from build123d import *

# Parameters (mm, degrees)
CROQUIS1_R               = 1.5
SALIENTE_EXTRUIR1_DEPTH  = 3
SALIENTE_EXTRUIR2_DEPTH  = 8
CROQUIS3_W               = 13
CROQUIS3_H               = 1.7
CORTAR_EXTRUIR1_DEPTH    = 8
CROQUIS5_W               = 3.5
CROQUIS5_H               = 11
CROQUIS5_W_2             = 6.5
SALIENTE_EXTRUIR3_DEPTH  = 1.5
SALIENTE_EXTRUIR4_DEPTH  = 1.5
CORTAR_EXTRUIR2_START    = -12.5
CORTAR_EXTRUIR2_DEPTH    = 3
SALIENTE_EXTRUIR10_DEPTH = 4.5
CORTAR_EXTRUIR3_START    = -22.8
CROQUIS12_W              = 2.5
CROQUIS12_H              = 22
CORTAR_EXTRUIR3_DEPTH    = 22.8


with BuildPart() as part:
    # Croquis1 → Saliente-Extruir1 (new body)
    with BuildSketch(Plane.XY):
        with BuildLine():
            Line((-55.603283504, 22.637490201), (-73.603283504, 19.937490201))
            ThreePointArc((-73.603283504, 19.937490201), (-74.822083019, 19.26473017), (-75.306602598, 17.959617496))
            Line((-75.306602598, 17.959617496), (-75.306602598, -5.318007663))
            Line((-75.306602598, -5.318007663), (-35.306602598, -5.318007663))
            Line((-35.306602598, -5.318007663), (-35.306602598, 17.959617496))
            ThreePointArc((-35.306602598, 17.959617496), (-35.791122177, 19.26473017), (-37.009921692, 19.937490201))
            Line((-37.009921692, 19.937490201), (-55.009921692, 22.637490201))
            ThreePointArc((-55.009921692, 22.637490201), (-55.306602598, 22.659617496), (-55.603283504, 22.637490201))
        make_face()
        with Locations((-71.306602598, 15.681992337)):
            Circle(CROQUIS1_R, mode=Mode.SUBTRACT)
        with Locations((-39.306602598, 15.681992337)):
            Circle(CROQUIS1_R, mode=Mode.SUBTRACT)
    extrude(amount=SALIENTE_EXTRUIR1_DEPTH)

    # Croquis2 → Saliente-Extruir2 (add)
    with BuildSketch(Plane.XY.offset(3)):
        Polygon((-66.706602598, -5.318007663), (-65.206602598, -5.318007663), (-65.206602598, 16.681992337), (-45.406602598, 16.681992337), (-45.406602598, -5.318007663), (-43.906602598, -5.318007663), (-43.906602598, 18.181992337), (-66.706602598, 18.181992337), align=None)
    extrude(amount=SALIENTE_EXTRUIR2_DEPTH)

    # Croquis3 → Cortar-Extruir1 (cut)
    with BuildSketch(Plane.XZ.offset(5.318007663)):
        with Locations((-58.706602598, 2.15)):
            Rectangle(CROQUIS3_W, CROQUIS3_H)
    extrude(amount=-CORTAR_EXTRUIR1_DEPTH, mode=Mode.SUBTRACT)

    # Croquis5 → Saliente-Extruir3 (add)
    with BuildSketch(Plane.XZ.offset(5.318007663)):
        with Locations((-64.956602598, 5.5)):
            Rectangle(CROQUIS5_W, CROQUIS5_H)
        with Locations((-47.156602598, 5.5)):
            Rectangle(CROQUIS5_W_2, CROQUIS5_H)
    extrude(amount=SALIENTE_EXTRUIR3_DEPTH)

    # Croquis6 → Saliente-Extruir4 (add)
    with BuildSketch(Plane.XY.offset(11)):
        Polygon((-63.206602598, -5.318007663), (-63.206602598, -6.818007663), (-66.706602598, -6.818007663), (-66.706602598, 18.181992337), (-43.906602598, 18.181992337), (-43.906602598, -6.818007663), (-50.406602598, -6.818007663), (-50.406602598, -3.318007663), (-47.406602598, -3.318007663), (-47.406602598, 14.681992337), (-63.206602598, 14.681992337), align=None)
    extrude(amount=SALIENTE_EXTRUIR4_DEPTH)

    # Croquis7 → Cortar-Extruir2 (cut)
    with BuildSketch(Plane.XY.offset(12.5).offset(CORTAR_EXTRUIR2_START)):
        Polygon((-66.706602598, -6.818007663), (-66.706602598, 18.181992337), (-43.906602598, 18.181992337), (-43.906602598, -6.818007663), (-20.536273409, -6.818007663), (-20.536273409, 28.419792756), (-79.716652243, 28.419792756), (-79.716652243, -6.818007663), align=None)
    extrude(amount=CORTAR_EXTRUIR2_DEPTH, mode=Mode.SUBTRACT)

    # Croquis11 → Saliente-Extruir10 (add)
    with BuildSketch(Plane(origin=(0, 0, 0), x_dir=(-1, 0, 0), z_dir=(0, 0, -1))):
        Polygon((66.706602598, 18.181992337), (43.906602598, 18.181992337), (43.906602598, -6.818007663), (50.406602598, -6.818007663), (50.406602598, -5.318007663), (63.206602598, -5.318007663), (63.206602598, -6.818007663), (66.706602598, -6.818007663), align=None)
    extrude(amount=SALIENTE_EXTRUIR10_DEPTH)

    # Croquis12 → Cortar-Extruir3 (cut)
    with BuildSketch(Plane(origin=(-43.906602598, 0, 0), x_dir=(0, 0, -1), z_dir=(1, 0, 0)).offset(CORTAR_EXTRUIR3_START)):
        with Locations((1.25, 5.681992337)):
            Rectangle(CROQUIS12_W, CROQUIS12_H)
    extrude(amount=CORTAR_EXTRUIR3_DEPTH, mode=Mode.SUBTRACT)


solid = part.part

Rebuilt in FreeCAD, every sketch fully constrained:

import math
import FreeCAD as App
import Part
import Sketcher
Q = App.Units.Quantity

doc = App.newDocument("Part")
body = doc.addObject("PartDesign::Body", "Body")

sketch1 = body.newObject("Sketcher::SketchObject", "Sketch")
sketch1.AttachmentSupport = (doc.getObject("XY_Plane"), [""])
sketch1.MapMode = "FlatFace"
sketch1.addGeometry([
    Part.LineSegment(App.Vector(-55.6, 22.6, 0), App.Vector(-73.6, 19.9, 0)),
    Part.ArcOfCircle(Part.Circle(App.Vector(-73.3, 18, 0), App.Vector(0, 0, 1), 2), math.radians(99), math.radians(180)),
    Part.LineSegment(App.Vector(-75.3, 18, 0), App.Vector(-75.3, -5.3, 0)),
    Part.LineSegment(App.Vector(-75.3, -5.3, 0), App.Vector(-35.3, -5.3, 0)),
    Part.LineSegment(App.Vector(-35.3, -5.3, 0), App.Vector(-35.3, 18, 0)),
    Part.ArcOfCircle(Part.Circle(App.Vector(-37.3, 18, 0), App.Vector(0, 0, 1), 2), math.radians(0), math.radians(81)),
    Part.LineSegment(App.Vector(-37, 19.9, 0), App.Vector(-55, 22.6, 0)),
    Part.ArcOfCircle(Part.Circle(App.Vector(-55.3, 20.7, 0), App.Vector(0, 0, 1), 2), math.radians(81.47), math.radians(98.53)),
    Part.Circle(App.Vector(-71.3, 15.7, 0), App.Vector(0, 0, 1), 1.5),
    Part.Circle(App.Vector(-39.3, 15.7, 0), App.Vector(0, 0, 1), 1.5),
], False)
sketch1.addConstraint([
    Sketcher.Constraint("Tangent", 0, 2, 1, 1),
    Sketcher.Constraint("Tangent", 1, 2, 2, 1),
    Sketcher.Constraint("Coincident", 2, 2, 3, 1),
    Sketcher.Constraint("Coincident", 3, 2, 4, 1),
    Sketcher.Constraint("Tangent", 4, 2, 5, 1),
    Sketcher.Constraint("Tangent", 5, 2, 6, 1),
    Sketcher.Constraint("Tangent", 6, 2, 7, 1),
    Sketcher.Constraint("Tangent", 7, 2, 0, 1),
    Sketcher.Constraint("Vertical", 2),
    Sketcher.Constraint("Horizontal", 3),
    Sketcher.Constraint("Vertical", 4),
    Sketcher.Constraint("Equal", 1, 5),
    Sketcher.Constraint("Equal", 5, 7),
    Sketcher.Constraint("Equal", 8, 9),
    Sketcher.Constraint("Horizontal", 1, 3, 5, 3),
    Sketcher.Constraint("Horizontal", 8, 3, 9, 3),
    Sketcher.Constraint("Equal", 0, 6),
    Sketcher.Constraint("Diameter", 8, Q("3 mm")),
    Sketcher.Constraint("Radius", 1, Q("2 mm")),
    Sketcher.Constraint("DistanceX", 3, 1, 3, 2, Q("40 mm")),
    Sketcher.Constraint("DistanceX", 1, 3, 8, 3, Q("2 mm")),
    Sketcher.Constraint("DistanceX", 9, 3, 5, 3, Q("2 mm")),
    Sketcher.Constraint("DistanceY", 2, 2, 8, 3, Q("21 mm")),
    Sketcher.Constraint("DistanceY", 1, 3, 7, 3, Q("2.7 mm")),
    Sketcher.Constraint("DistanceY", 2, 2, 2, 1, Q("23.277625 mm")),
    Sketcher.Constraint("DistanceY", -1, 1, 0, 2, Q("19.93749 mm")),
    Sketcher.Constraint("DistanceX", 5, 2, -1, 1, Q("37.009922 mm")),
])
pad1 = body.newObject("PartDesign::Pad", "Pad")
pad1.Profile = sketch1
pad1.Length = 3

sketch2 = body.newObject("Sketcher::SketchObject", "Sketch001")
sketch2.AttachmentSupport = (doc.getObject("XY_Plane"), [""])
sketch2.MapMode = "FlatFace"
sketch2.AttachmentOffset = App.Placement(App.Vector(0, 0, 3), App.Rotation())
sketch2.addGeometry([
    Part.LineSegment(App.Vector(-66.7, -5.3, 0), App.Vector(-65.2, -5.3, 0)),
    Part.LineSegment(App.Vector(-65.2, -5.3, 0), App.Vector(-65.2, 16.7, 0)),
    Part.LineSegment(App.Vector(-65.2, 16.7, 0), App.Vector(-45.4, 16.7, 0)),
    Part.LineSegment(App.Vector(-45.4, 16.7, 0), App.Vector(-45.4, -5.3, 0)),
    Part.LineSegment(App.Vector(-45.4, -5.3, 0), App.Vector(-43.9, -5.3, 0)),
    Part.LineSegment(App.Vector(-43.9, -5.3, 0), App.Vector(-43.9, 18.2, 0)),
    Part.LineSegment(App.Vector(-43.9, 18.2, 0), App.Vector(-66.7, 18.2, 0)),
    Part.LineSegment(App.Vector(-66.7, 18.2, 0), App.Vector(-66.7, -5.3, 0)),
], False)
sketch2.addConstraint([
    Sketcher.Constraint("Coincident", 0, 2, 1, 1),
    Sketcher.Constraint("Coincident", 1, 2, 2, 1),
    Sketcher.Constraint("Coincident", 2, 2, 3, 1),
    Sketcher.Constraint("Coincident", 3, 2, 4, 1),
    Sketcher.Constraint("Coincident", 4, 2, 5, 1),
    Sketcher.Constraint("Coincident", 5, 2, 6, 1),
    Sketcher.Constraint("Coincident", 6, 2, 7, 1),
    Sketcher.Constraint("Coincident", 7, 2, 0, 1),
    Sketcher.Constraint("Horizontal", 0),
    Sketcher.Constraint("Vertical", 1),
    Sketcher.Constraint("Horizontal", 2),
    Sketcher.Constraint("Vertical", 3),
    Sketcher.Constraint("Horizontal", 4),
    Sketcher.Constraint("Vertical", 5),
    Sketcher.Constraint("Horizontal", 6),
    Sketcher.Constraint("Vertical", 7),
    Sketcher.Constraint("Horizontal", 0, 2, 3, 2),
    Sketcher.Constraint("Equal", 0, 4),
    Sketcher.Constraint("DistanceY", 1, 1, 1, 2, Q("22 mm")),
    Sketcher.Constraint("DistanceX", 0, 1, 0, 2, Q("1.5 mm")),
    Sketcher.Constraint("DistanceX", 2, 1, 2, 2, Q("19.8 mm")),
    Sketcher.Constraint("DistanceY", 5, 1, 5, 2, Q("23.5 mm")),
    Sketcher.Constraint("DistanceX", 0, 2, -1, 1, Q("65.206603 mm")),
    Sketcher.Constraint("DistanceY", 0, 2, -1, 1, Q("5.318008 mm")),
])
pad2 = body.newObject("PartDesign::Pad", "Pad001")
pad2.Profile = sketch2
pad2.Length = 8

sketch3 = body.newObject("Sketcher::SketchObject", "Sketch002")
sketch3.AttachmentSupport = (doc.getObject("XZ_Plane"), [""])
sketch3.MapMode = "FlatFace"
sketch3.AttachmentOffset = App.Placement(App.Vector(0, 0, 5.318008), App.Rotation())
sketch3.addGeometry([
    Part.LineSegment(App.Vector(-65.2, 3, 0), App.Vector(-65.2, 1.3, 0)),
    Part.LineSegment(App.Vector(-65.2, 1.3, 0), App.Vector(-52.2, 1.3, 0)),
    Part.LineSegment(App.Vector(-52.2, 1.3, 0), App.Vector(-52.2, 3, 0)),
    Part.LineSegment(App.Vector(-52.2, 3, 0), App.Vector(-65.2, 3, 0)),
], False)
sketch3.addConstraint([
    Sketcher.Constraint("Coincident", 0, 2, 1, 1),
    Sketcher.Constraint("Coincident", 1, 2, 2, 1),
    Sketcher.Constraint("Coincident", 2, 2, 3, 1),
    Sketcher.Constraint("Coincident", 3, 2, 0, 1),
    Sketcher.Constraint("Vertical", 0),
    Sketcher.Constraint("Horizontal", 1),
    Sketcher.Constraint("Vertical", 2),
    Sketcher.Constraint("Horizontal", 3),
    Sketcher.Constraint("DistanceX", 1, 1, 1, 2, Q("13 mm")),
    Sketcher.Constraint("DistanceY", 0, 2, 0, 1, Q("1.7 mm")),
    Sketcher.Constraint("DistanceY", -1, 1, 2, 2, Q("3 mm")),
    Sketcher.Constraint("DistanceX", 0, 2, -1, 1, Q("65.206603 mm")),
])
pocket1 = body.newObject("PartDesign::Pocket", "Pocket")
pocket1.Profile = sketch3
pocket1.Length = 8

sketch4 = body.newObject("Sketcher::SketchObject", "Sketch003")
sketch4.AttachmentSupport = (doc.getObject("XZ_Plane"), [""])
sketch4.MapMode = "FlatFace"
sketch4.AttachmentOffset = App.Placement(App.Vector(0, 0, 5.318008), App.Rotation())
sketch4.addGeometry([
    Part.LineSegment(App.Vector(-66.7, 11, 0), App.Vector(-66.7, 0, 0)),
    Part.LineSegment(App.Vector(-66.7, 0, 0), App.Vector(-63.2, 0, 0)),
    Part.LineSegment(App.Vector(-63.2, 0, 0), App.Vector(-63.2, 11, 0)),
    Part.LineSegment(App.Vector(-63.2, 11, 0), App.Vector(-66.7, 11, 0)),
    Part.LineSegment(App.Vector(-50.4, 11, 0), App.Vector(-50.4, 0, 0)),
    Part.LineSegment(App.Vector(-50.4, 0, 0), App.Vector(-43.9, 0, 0)),
    Part.LineSegment(App.Vector(-43.9, 0, 0), App.Vector(-43.9, 11, 0)),
    Part.LineSegment(App.Vector(-43.9, 11, 0), App.Vector(-50.4, 11, 0)),
], False)
sketch4.addConstraint([
    Sketcher.Constraint("Coincident", 0, 2, 1, 1),
    Sketcher.Constraint("Coincident", 1, 2, 2, 1),
    Sketcher.Constraint("Coincident", 2, 2, 3, 1),
    Sketcher.Constraint("Coincident", 3, 2, 0, 1),
    Sketcher.Constraint("Coincident", 4, 2, 5, 1),
    Sketcher.Constraint("Coincident", 5, 2, 6, 1),
    Sketcher.Constraint("Coincident", 6, 2, 7, 1),
    Sketcher.Constraint("Coincident", 7, 2, 4, 1),
    Sketcher.Constraint("Vertical", 0),
    Sketcher.Constraint("Horizontal", 1),
    Sketcher.Constraint("Vertical", 2),
    Sketcher.Constraint("Horizontal", 3),
    Sketcher.Constraint("Vertical", 4),
    Sketcher.Constraint("Horizontal", 5),
    Sketcher.Constraint("Vertical", 6),
    Sketcher.Constraint("Horizontal", 7),
    Sketcher.Constraint("PointOnObject", 0, 2, -1),
    Sketcher.Constraint("PointOnObject", 4, 2, -1),
    Sketcher.Constraint("Horizontal", 3, 2, 6, 2),
    Sketcher.Constraint("DistanceY", 0, 2, 0, 1, Q("11 mm")),
    Sketcher.Constraint("DistanceX", 1, 1, 1, 2, Q("3.5 mm")),
    Sketcher.Constraint("DistanceX", 5, 1, 5, 2, Q("6.5 mm")),
    Sketcher.Constraint("DistanceX", 1, 2, 4, 2, Q("12.8 mm")),
    Sketcher.Constraint("DistanceX", 0, 2, -1, 1, Q("66.706603 mm")),
])
pad3 = body.newObject("PartDesign::Pad", "Pad002")
pad3.Profile = sketch4
pad3.Length = 1.5

sketch5 = body.newObject("Sketcher::SketchObject", "Sketch004")
sketch5.AttachmentSupport = (doc.getObject("XY_Plane"), [""])
sketch5.MapMode = "FlatFace"
sketch5.AttachmentOffset = App.Placement(App.Vector(0, 0, 11), App.Rotation())
sketch5.addGeometry([
    Part.LineSegment(App.Vector(-63.2, -6.8, 0), App.Vector(-63.2, 14.7, 0)),
    Part.LineSegment(App.Vector(-63.2, 14.7, 0), App.Vector(-47.4, 14.7, 0)),
    Part.LineSegment(App.Vector(-47.4, 14.7, 0), App.Vector(-47.4, -3.3, 0)),
    Part.LineSegment(App.Vector(-47.4, -3.3, 0), App.Vector(-50.4, -3.3, 0)),
    Part.LineSegment(App.Vector(-50.4, -3.3, 0), App.Vector(-50.4, -6.8, 0)),
    Part.LineSegment(App.Vector(-50.4, -6.8, 0), App.Vector(-43.9, -6.8, 0)),
    Part.LineSegment(App.Vector(-43.9, -6.8, 0), App.Vector(-43.9, 18.2, 0)),
    Part.LineSegment(App.Vector(-43.9, 18.2, 0), App.Vector(-66.7, 18.2, 0)),
    Part.LineSegment(App.Vector(-66.7, 18.2, 0), App.Vector(-66.7, -6.8, 0)),
    Part.LineSegment(App.Vector(-66.7, -6.8, 0), App.Vector(-63.2, -6.8, 0)),
], False)
sketch5.addConstraint([
    Sketcher.Constraint("Coincident", 0, 2, 1, 1),
    Sketcher.Constraint("Coincident", 1, 2, 2, 1),
    Sketcher.Constraint("Coincident", 2, 2, 3, 1),
    Sketcher.Constraint("Coincident", 3, 2, 4, 1),
    Sketcher.Constraint("Coincident", 4, 2, 5, 1),
    Sketcher.Constraint("Coincident", 5, 2, 6, 1),
    Sketcher.Constraint("Coincident", 6, 2, 7, 1),
    Sketcher.Constraint("Coincident", 7, 2, 8, 1),
    Sketcher.Constraint("Coincident", 8, 2, 9, 1),
    Sketcher.Constraint("Coincident", 9, 2, 0, 1),
    Sketcher.Constraint("Vertical", 0),
    Sketcher.Constraint("Horizontal", 1),
    Sketcher.Constraint("Vertical", 2),
    Sketcher.Constraint("Horizontal", 3),
    Sketcher.Constraint("Vertical", 4),
    Sketcher.Constraint("Horizontal", 5),
    Sketcher.Constraint("Vertical", 6),
    Sketcher.Constraint("Horizontal", 7),
    Sketcher.Constraint("Vertical", 8),
    Sketcher.Constraint("Horizontal", 9),
    Sketcher.Constraint("Horizontal", 5, 2, 8, 2),
    Sketcher.Constraint("Equal", 9, 4),
    Sketcher.Constraint("DistanceX", 3, 2, 3, 1, Q("3 mm")),
    Sketcher.Constraint("DistanceY", 2, 2, 2, 1, Q("18 mm")),
    Sketcher.Constraint("DistanceY", 6, 1, 6, 2, Q("25 mm")),
    Sketcher.Constraint("DistanceX", 1, 1, 1, 2, Q("15.8 mm")),
    Sketcher.Constraint("DistanceX", 5, 1, 5, 2, Q("6.5 mm")),
    Sketcher.Constraint("DistanceX", 7, 2, 7, 1, Q("22.8 mm")),
    Sketcher.Constraint("DistanceX", 0, 2, -1, 1, Q("63.206603 mm")),
    Sketcher.Constraint("DistanceY", -1, 1, 0, 2, Q("14.681992 mm")),
])
pad4 = body.newObject("PartDesign::Pad", "Pad003")
pad4.Profile = sketch5
pad4.Length = 1.5

sketch6 = body.newObject("Sketcher::SketchObject", "Sketch005")
sketch6.AttachmentSupport = (doc.getObject("XY_Plane"), [""])
sketch6.MapMode = "FlatFace"
sketch6.addGeometry([
    Part.LineSegment(App.Vector(-67, -7, 0), App.Vector(-67, 18, 0)),
    Part.LineSegment(App.Vector(-67, 18, 0), App.Vector(-44, 18, 0)),
    Part.LineSegment(App.Vector(-44, 18, 0), App.Vector(-44, -7, 0)),
    Part.LineSegment(App.Vector(-44, -7, 0), App.Vector(-21, -7, 0)),
    Part.LineSegment(App.Vector(-21, -7, 0), App.Vector(-21, 28, 0)),
    Part.LineSegment(App.Vector(-21, 28, 0), App.Vector(-80, 28, 0)),
    Part.LineSegment(App.Vector(-80, 28, 0), App.Vector(-80, -7, 0)),
    Part.LineSegment(App.Vector(-80, -7, 0), App.Vector(-67, -7, 0)),
], False)
sketch6.addConstraint([
    Sketcher.Constraint("Coincident", 0, 2, 1, 1),
    Sketcher.Constraint("Coincident", 1, 2, 2, 1),
    Sketcher.Constraint("Coincident", 2, 2, 3, 1),
    Sketcher.Constraint("Coincident", 3, 2, 4, 1),
    Sketcher.Constraint("Coincident", 4, 2, 5, 1),
    Sketcher.Constraint("Coincident", 5, 2, 6, 1),
    Sketcher.Constraint("Coincident", 6, 2, 7, 1),
    Sketcher.Constraint("Coincident", 7, 2, 0, 1),
    Sketcher.Constraint("Vertical", 0),
    Sketcher.Constraint("Horizontal", 1),
    Sketcher.Constraint("Vertical", 2),
    Sketcher.Constraint("Horizontal", 3),
    Sketcher.Constraint("Vertical", 4),
    Sketcher.Constraint("Horizontal", 5),
    Sketcher.Constraint("Vertical", 6),
    Sketcher.Constraint("Horizontal", 7),
    Sketcher.Constraint("Horizontal", 3, 2, 6, 2),
    Sketcher.Constraint("DistanceY", 0, 1, 0, 2, Q("25 mm")),
    Sketcher.Constraint("DistanceX", 1, 1, 1, 2, Q("22.8 mm")),
    Sketcher.Constraint("DistanceY", 4, 1, 4, 2, Q("35.2378 mm")),
    Sketcher.Constraint("DistanceX", 3, 1, 3, 2, Q("23.370329 mm")),
    Sketcher.Constraint("DistanceX", 5, 2, 5, 1, Q("59.180379 mm")),
    Sketcher.Constraint("DistanceX", 0, 2, -1, 1, Q("66.706603 mm")),
    Sketcher.Constraint("DistanceY", -1, 1, 0, 2, Q("18.181992 mm")),
])
pocket2 = body.newObject("PartDesign::Pocket", "Pocket001")
pocket2.Profile = sketch6
pocket2.Length = 3
pocket2.Reversed = True

sketch7 = body.newObject("Sketcher::SketchObject", "Sketch006")
sketch7.AttachmentSupport = (doc.getObject("XY_Plane"), [""])
sketch7.MapMode = "FlatFace"
sketch7.addGeometry([
    Part.LineSegment(App.Vector(-66.7, 18.2, 0), App.Vector(-43.9, 18.2, 0)),
    Part.LineSegment(App.Vector(-43.9, 18.2, 0), App.Vector(-43.9, -6.8, 0)),
    Part.LineSegment(App.Vector(-43.9, -6.8, 0), App.Vector(-50.4, -6.8, 0)),
    Part.LineSegment(App.Vector(-50.4, -6.8, 0), App.Vector(-50.4, -5.3, 0)),
    Part.LineSegment(App.Vector(-50.4, -5.3, 0), App.Vector(-63.2, -5.3, 0)),
    Part.LineSegment(App.Vector(-63.2, -5.3, 0), App.Vector(-63.2, -6.8, 0)),
    Part.LineSegment(App.Vector(-63.2, -6.8, 0), App.Vector(-66.7, -6.8, 0)),
    Part.LineSegment(App.Vector(-66.7, -6.8, 0), App.Vector(-66.7, 18.2, 0)),
], False)
sketch7.addConstraint([
    Sketcher.Constraint("Coincident", 0, 2, 1, 1),
    Sketcher.Constraint("Coincident", 1, 2, 2, 1),
    Sketcher.Constraint("Coincident", 2, 2, 3, 1),
    Sketcher.Constraint("Coincident", 3, 2, 4, 1),
    Sketcher.Constraint("Coincident", 4, 2, 5, 1),
    Sketcher.Constraint("Coincident", 5, 2, 6, 1),
    Sketcher.Constraint("Coincident", 6, 2, 7, 1),
    Sketcher.Constraint("Coincident", 7, 2, 0, 1),
    Sketcher.Constraint("Horizontal", 0),
    Sketcher.Constraint("Vertical", 1),
    Sketcher.Constraint("Horizontal", 2),
    Sketcher.Constraint("Vertical", 3),
    Sketcher.Constraint("Horizontal", 4),
    Sketcher.Constraint("Vertical", 5),
    Sketcher.Constraint("Horizontal", 6),
    Sketcher.Constraint("Vertical", 7),
    Sketcher.Constraint("Horizontal", 2, 2, 5, 2),
    Sketcher.Constraint("DistanceY", 1, 2, 1, 1, Q("25 mm")),
    Sketcher.Constraint("DistanceX", 0, 1, 0, 2, Q("22.8 mm")),
    Sketcher.Constraint("DistanceX", 2, 2, 2, 1, Q("6.5 mm")),
    Sketcher.Constraint("DistanceX", 4, 2, 4, 1, Q("12.8 mm")),
    Sketcher.Constraint("DistanceY", 3, 1, 3, 2, Q("1.5 mm")),
    Sketcher.Constraint("DistanceX", 0, 2, -1, 1, Q("43.906603 mm")),
    Sketcher.Constraint("DistanceY", -1, 1, 0, 2, Q("18.181992 mm")),
])
pad5 = body.newObject("PartDesign::Pad", "Pad004")
pad5.Profile = sketch7
pad5.Length = 4.5
pad5.Reversed = True

sketch8 = body.newObject("Sketcher::SketchObject", "Sketch007")
sketch8.AttachmentSupport = (doc.getObject("YZ_Plane"), [""])
sketch8.MapMode = "FlatFace"
sketch8.AttachmentOffset = App.Placement(App.Vector(0, 0, -66.706603), App.Rotation())
sketch8.addGeometry([
    Part.LineSegment(App.Vector(16.7, 0, 0), App.Vector(-5.3, 0, 0)),
    Part.LineSegment(App.Vector(-5.3, 0, 0), App.Vector(-5.3, -2.5, 0)),
    Part.LineSegment(App.Vector(-5.3, -2.5, 0), App.Vector(16.7, -2.5, 0)),
    Part.LineSegment(App.Vector(16.7, -2.5, 0), App.Vector(16.7, 0, 0)),
], False)
sketch8.addConstraint([
    Sketcher.Constraint("Coincident", 0, 2, 1, 1),
    Sketcher.Constraint("Coincident", 1, 2, 2, 1),
    Sketcher.Constraint("Coincident", 2, 2, 3, 1),
    Sketcher.Constraint("Coincident", 3, 2, 0, 1),
    Sketcher.Constraint("Horizontal", 0),
    Sketcher.Constraint("Vertical", 1),
    Sketcher.Constraint("Horizontal", 2),
    Sketcher.Constraint("Vertical", 3),
    Sketcher.Constraint("PointOnObject", 0, 2, -1),
    Sketcher.Constraint("DistanceX", 0, 2, 0, 1, Q("22 mm")),
    Sketcher.Constraint("DistanceY", 1, 2, 1, 1, Q("2.5 mm")),
    Sketcher.Constraint("DistanceX", 0, 2, -1, 1, Q("5.318008 mm")),
])
pocket3 = body.newObject("PartDesign::Pocket", "Pocket002")
pocket3.Profile = sketch8
pocket3.Length = 22.8
pocket3.Reversed = True

doc.recompute()
